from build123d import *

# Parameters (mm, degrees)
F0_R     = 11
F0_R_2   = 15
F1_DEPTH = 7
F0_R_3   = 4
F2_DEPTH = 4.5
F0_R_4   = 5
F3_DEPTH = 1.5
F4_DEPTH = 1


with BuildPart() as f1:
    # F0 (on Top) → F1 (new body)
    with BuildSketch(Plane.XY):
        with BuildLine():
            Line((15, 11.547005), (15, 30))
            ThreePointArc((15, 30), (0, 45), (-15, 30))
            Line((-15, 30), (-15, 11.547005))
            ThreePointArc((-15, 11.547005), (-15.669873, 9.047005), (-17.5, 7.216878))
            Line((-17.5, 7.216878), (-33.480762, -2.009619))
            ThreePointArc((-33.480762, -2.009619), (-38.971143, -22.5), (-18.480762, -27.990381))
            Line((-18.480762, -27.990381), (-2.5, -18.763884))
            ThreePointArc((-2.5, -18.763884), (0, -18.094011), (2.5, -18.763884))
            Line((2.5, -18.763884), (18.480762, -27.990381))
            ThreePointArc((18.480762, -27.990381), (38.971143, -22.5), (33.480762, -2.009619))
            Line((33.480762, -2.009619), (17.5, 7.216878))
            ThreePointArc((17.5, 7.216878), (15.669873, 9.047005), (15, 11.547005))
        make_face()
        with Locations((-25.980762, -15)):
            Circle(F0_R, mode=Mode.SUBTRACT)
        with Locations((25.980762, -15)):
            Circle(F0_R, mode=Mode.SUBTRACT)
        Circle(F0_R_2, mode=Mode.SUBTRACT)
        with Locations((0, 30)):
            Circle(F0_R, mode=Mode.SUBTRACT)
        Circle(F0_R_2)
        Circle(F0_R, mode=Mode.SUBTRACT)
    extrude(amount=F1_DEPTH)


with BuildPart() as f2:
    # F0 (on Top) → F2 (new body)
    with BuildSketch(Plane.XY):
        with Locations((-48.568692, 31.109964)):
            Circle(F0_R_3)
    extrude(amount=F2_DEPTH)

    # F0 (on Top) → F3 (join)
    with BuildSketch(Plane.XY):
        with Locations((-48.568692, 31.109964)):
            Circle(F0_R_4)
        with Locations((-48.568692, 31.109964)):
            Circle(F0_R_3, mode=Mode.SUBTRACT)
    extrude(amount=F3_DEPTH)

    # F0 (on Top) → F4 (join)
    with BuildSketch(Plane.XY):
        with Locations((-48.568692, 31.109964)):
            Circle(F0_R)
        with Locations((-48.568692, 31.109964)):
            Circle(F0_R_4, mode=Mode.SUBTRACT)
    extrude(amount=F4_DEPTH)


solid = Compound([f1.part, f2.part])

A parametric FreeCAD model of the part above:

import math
import FreeCAD as App
import Part
import Sketcher

V = App.Vector

doc = App.newDocument("Part")
body = doc.addObject("PartDesign::Body", "Body")

# Sketch on XY plane
sketch1 = doc.addObject("Sketcher::SketchObject", "Sketch")
body.addObject(sketch1)
sketch1.AttachmentSupport = (doc.XY_Plane, [""])
sketch1.MapMode = "FlatFace"
sketch1.addGeometry([
    Part.LineSegment(V(15, 11.5, 0), V(15, 30, 0)),  # 0
    Part.ArcOfCircle(Part.Circle(V(0, 30, 0), V(0, 0, 1), 15), math.radians(0), math.radians(180)),  # 1
    Part.LineSegment(V(-15, 30, 0), V(-15, 11.5, 0)),  # 2
    Part.ArcOfCircle(Part.Circle(V(-20, 11.5, 0), V(0, 0, 1), 5), math.radians(-60), math.radians(0)),  # 3
    Part.LineSegment(V(-17.5, 7.2, 0), V(-33.5, -2, 0)),  # 4
    Part.ArcOfCircle(Part.Circle(V(-26, -15, 0), V(0, 0, 1), 15), math.radians(120), math.radians(300)),  # 5
    Part.LineSegment(V(-18.5, -28, 0), V(-2.5, -18.8, 0)),  # 6
    Part.ArcOfCircle(Part.Circle(V(0, -23.1, 0), V(0, 0, 1), 5), math.radians(60), math.radians(120)),  # 7
    Part.LineSegment(V(2.5, -18.8, 0), V(18.5, -28, 0)),  # 8
    Part.ArcOfCircle(Part.Circle(V(26, -15, 0), V(0, 0, 1), 15), math.radians(-120), math.radians(60)),  # 9
    Part.LineSegment(V(33.5, -2, 0), V(17.5, 7.2, 0)),  # 10
    Part.ArcOfCircle(Part.Circle(V(20, 11.5, 0), V(0, 0, 1), 5), math.radians(-180), math.radians(-120)),  # 11
    Part.Circle(V(-26, -15, 0), V(0, 0, 1), 11),  # 12
    Part.Circle(V(26, -15, 0), V(0, 0, 1), 11),  # 13
    Part.Circle(V(0, 0, 0), V(0, 0, 1), 11),  # 14
    Part.Circle(V(0, 30, 0), V(0, 0, 1), 11),  # 15
], False)
sketch1.addConstraint([
    Sketcher.Constraint("Tangent", 0, 2, 1, 1),
    Sketcher.Constraint("Tangent", 1, 2, 2, 1),
    Sketcher.Constraint("Tangent", 2, 2, 3, 2),
    Sketcher.Constraint("Tangent", 3, 1, 4, 1),
    Sketcher.Constraint("Tangent", 4, 2, 5, 1),
    Sketcher.Constraint("Tangent", 5, 2, 6, 1),
    Sketcher.Constraint("Tangent", 6, 2, 7, 2),
    Sketcher.Constraint("Tangent", 7, 1, 8, 1),
    Sketcher.Constraint("Tangent", 8, 2, 9, 1),
    Sketcher.Constraint("Tangent", 9, 2, 10, 1),
    Sketcher.Constraint("Tangent", 10, 2, 11, 2),
    Sketcher.Constraint("Tangent", 11, 1, 0, 1),
    Sketcher.Constraint("Vertical", 0),
    Sketcher.Constraint("Vertical", 2),
    Sketcher.Constraint("Coincident", 14, 3, -1, 1),
    Sketcher.Constraint("Coincident", 12, 3, 5, 3),
    Sketcher.Constraint("Coincident", 13, 3, 9, 3),
    Sketcher.Constraint("Coincident", 15, 3, 1, 3),
    Sketcher.Constraint("Equal", 1, 5),
    Sketcher.Constraint("Equal", 3, 7),
    Sketcher.Constraint("Equal", 5, 9),
    Sketcher.Constraint("Equal", 7, 11),
    Sketcher.Constraint("Equal", 12, 13),
    Sketcher.Constraint("Equal", 13, 14),
    Sketcher.Constraint("Equal", 14, 15),
    Sketcher.Constraint("Symmetric", 5, 3, 9, 3, -2),
    Sketcher.Constraint("Symmetric", 3, 3, 11, 3, -2),
    Sketcher.Constraint("PointOnObject", 7, 3, -2),
    Sketcher.Constraint("Parallel", 4, 6),
    Sketcher.Constraint("Equal", 4, 6),
    Sketcher.Constraint("Diameter", 12, 22.0),
    Sketcher.Constraint("Radius", 1, 15.0),
    Sketcher.Constraint("Radius", 3, 5.0),
    Sketcher.Constraint("DistanceY", -1, 1, 1, 3, 30.0),
    Sketcher.Constraint("DistanceY", 5, 3, -1, 1, 15.0),
    Sketcher.Constraint("DistanceY", 0, 1, 0, 2, 18.452995),
])
pad1 = doc.addObject("PartDesign::Pad", "Pad")
body.addObject(pad1)
pad1.Profile = sketch1
pad1.Length = 7
body2 = doc.addObject("PartDesign::Body", "Body001")

# Sketch on XY plane
sketch2 = doc.addObject("Sketcher::SketchObject", "Sketch001")
body2.addObject(sketch2)
sketch2.AttachmentSupport = (doc.getObject("XY_Plane001"), [""])
sketch2.MapMode = "FlatFace"
sketch2.addGeometry(Part.Circle(V(-48.6, 31.1, 0), V(0, 0, 1), 4), False)
sketch2.addConstraint([
    Sketcher.Constraint("Diameter", 0, 8.0),
    Sketcher.Constraint("DistanceX", 0, 3, -1, 1, 48.568692),
    Sketcher.Constraint("DistanceY", -1, 1, 0, 3, 31.109964),
])
pad2 = doc.addObject("PartDesign::Pad", "Pad001")
body2.addObject(pad2)
pad2.Profile = sketch2
pad2.Length = 4.5

# Sketch on XY plane
sketch3 = doc.addObject("Sketcher::SketchObject", "Sketch002")
body2.addObject(sketch3)
sketch3.AttachmentSupport = (doc.getObject("XY_Plane001"), [""])
sketch3.MapMode = "FlatFace"
sketch3.addGeometry([
    Part.Circle(V(-48.6, 31.1, 0), V(0, 0, 1), 5),
    Part.Circle(V(-48.6, 31.1, 0), V(0, 0, 1), 4),
], False)
sketch3.addConstraint([
    Sketcher.Constraint("Coincident", 1, 3, 0, 3),
    Sketcher.Constraint("Diameter", 0, 10.0),
    Sketcher.Constraint("Diameter", 1, 8.0),
    Sketcher.Constraint("DistanceX", 0, 3, -1, 1, 48.568692),
    Sketcher.Constraint("DistanceY", -1, 1, 0, 3, 31.109964),
])
pad3 = doc.addObject("PartDesign::Pad", "Pad002")
body2.addObject(pad3)
pad3.Profile = sketch3
pad3.Length = 1.5

# Sketch on XY plane
sketch4 = doc.addObject("Sketcher::SketchObject", "Sketch003")
body2.addObject(sketch4)
sketch4.AttachmentSupport = (doc.getObject("XY_Plane001"), [""])
sketch4.MapMode = "FlatFace"
sketch4.addGeometry([
    Part.Circle(V(-49, 31, 0), V(0, 0, 1), 11),
    Part.Circle(V(-49, 31, 0), V(0, 0, 1), 5),
], False)
sketch4.addConstraint([
    Sketcher.Constraint("Coincident", 1, 3, 0, 3),
    Sketcher.Constraint("Diameter", 0, 22.0),
    Sketcher.Constraint("Diameter", 1, 10.0),
    Sketcher.Constraint("DistanceX", 0, 3, -1, 1, 48.568692),
    Sketcher.Constraint("DistanceY", -1, 1, 0, 3, 31.109964),
])
pad4 = doc.addObject("PartDesign::Pad", "Pad003")
body2.addObject(pad4)
pad4.Profile = sketch4
pad4.Length = 1

doc.recompute()
